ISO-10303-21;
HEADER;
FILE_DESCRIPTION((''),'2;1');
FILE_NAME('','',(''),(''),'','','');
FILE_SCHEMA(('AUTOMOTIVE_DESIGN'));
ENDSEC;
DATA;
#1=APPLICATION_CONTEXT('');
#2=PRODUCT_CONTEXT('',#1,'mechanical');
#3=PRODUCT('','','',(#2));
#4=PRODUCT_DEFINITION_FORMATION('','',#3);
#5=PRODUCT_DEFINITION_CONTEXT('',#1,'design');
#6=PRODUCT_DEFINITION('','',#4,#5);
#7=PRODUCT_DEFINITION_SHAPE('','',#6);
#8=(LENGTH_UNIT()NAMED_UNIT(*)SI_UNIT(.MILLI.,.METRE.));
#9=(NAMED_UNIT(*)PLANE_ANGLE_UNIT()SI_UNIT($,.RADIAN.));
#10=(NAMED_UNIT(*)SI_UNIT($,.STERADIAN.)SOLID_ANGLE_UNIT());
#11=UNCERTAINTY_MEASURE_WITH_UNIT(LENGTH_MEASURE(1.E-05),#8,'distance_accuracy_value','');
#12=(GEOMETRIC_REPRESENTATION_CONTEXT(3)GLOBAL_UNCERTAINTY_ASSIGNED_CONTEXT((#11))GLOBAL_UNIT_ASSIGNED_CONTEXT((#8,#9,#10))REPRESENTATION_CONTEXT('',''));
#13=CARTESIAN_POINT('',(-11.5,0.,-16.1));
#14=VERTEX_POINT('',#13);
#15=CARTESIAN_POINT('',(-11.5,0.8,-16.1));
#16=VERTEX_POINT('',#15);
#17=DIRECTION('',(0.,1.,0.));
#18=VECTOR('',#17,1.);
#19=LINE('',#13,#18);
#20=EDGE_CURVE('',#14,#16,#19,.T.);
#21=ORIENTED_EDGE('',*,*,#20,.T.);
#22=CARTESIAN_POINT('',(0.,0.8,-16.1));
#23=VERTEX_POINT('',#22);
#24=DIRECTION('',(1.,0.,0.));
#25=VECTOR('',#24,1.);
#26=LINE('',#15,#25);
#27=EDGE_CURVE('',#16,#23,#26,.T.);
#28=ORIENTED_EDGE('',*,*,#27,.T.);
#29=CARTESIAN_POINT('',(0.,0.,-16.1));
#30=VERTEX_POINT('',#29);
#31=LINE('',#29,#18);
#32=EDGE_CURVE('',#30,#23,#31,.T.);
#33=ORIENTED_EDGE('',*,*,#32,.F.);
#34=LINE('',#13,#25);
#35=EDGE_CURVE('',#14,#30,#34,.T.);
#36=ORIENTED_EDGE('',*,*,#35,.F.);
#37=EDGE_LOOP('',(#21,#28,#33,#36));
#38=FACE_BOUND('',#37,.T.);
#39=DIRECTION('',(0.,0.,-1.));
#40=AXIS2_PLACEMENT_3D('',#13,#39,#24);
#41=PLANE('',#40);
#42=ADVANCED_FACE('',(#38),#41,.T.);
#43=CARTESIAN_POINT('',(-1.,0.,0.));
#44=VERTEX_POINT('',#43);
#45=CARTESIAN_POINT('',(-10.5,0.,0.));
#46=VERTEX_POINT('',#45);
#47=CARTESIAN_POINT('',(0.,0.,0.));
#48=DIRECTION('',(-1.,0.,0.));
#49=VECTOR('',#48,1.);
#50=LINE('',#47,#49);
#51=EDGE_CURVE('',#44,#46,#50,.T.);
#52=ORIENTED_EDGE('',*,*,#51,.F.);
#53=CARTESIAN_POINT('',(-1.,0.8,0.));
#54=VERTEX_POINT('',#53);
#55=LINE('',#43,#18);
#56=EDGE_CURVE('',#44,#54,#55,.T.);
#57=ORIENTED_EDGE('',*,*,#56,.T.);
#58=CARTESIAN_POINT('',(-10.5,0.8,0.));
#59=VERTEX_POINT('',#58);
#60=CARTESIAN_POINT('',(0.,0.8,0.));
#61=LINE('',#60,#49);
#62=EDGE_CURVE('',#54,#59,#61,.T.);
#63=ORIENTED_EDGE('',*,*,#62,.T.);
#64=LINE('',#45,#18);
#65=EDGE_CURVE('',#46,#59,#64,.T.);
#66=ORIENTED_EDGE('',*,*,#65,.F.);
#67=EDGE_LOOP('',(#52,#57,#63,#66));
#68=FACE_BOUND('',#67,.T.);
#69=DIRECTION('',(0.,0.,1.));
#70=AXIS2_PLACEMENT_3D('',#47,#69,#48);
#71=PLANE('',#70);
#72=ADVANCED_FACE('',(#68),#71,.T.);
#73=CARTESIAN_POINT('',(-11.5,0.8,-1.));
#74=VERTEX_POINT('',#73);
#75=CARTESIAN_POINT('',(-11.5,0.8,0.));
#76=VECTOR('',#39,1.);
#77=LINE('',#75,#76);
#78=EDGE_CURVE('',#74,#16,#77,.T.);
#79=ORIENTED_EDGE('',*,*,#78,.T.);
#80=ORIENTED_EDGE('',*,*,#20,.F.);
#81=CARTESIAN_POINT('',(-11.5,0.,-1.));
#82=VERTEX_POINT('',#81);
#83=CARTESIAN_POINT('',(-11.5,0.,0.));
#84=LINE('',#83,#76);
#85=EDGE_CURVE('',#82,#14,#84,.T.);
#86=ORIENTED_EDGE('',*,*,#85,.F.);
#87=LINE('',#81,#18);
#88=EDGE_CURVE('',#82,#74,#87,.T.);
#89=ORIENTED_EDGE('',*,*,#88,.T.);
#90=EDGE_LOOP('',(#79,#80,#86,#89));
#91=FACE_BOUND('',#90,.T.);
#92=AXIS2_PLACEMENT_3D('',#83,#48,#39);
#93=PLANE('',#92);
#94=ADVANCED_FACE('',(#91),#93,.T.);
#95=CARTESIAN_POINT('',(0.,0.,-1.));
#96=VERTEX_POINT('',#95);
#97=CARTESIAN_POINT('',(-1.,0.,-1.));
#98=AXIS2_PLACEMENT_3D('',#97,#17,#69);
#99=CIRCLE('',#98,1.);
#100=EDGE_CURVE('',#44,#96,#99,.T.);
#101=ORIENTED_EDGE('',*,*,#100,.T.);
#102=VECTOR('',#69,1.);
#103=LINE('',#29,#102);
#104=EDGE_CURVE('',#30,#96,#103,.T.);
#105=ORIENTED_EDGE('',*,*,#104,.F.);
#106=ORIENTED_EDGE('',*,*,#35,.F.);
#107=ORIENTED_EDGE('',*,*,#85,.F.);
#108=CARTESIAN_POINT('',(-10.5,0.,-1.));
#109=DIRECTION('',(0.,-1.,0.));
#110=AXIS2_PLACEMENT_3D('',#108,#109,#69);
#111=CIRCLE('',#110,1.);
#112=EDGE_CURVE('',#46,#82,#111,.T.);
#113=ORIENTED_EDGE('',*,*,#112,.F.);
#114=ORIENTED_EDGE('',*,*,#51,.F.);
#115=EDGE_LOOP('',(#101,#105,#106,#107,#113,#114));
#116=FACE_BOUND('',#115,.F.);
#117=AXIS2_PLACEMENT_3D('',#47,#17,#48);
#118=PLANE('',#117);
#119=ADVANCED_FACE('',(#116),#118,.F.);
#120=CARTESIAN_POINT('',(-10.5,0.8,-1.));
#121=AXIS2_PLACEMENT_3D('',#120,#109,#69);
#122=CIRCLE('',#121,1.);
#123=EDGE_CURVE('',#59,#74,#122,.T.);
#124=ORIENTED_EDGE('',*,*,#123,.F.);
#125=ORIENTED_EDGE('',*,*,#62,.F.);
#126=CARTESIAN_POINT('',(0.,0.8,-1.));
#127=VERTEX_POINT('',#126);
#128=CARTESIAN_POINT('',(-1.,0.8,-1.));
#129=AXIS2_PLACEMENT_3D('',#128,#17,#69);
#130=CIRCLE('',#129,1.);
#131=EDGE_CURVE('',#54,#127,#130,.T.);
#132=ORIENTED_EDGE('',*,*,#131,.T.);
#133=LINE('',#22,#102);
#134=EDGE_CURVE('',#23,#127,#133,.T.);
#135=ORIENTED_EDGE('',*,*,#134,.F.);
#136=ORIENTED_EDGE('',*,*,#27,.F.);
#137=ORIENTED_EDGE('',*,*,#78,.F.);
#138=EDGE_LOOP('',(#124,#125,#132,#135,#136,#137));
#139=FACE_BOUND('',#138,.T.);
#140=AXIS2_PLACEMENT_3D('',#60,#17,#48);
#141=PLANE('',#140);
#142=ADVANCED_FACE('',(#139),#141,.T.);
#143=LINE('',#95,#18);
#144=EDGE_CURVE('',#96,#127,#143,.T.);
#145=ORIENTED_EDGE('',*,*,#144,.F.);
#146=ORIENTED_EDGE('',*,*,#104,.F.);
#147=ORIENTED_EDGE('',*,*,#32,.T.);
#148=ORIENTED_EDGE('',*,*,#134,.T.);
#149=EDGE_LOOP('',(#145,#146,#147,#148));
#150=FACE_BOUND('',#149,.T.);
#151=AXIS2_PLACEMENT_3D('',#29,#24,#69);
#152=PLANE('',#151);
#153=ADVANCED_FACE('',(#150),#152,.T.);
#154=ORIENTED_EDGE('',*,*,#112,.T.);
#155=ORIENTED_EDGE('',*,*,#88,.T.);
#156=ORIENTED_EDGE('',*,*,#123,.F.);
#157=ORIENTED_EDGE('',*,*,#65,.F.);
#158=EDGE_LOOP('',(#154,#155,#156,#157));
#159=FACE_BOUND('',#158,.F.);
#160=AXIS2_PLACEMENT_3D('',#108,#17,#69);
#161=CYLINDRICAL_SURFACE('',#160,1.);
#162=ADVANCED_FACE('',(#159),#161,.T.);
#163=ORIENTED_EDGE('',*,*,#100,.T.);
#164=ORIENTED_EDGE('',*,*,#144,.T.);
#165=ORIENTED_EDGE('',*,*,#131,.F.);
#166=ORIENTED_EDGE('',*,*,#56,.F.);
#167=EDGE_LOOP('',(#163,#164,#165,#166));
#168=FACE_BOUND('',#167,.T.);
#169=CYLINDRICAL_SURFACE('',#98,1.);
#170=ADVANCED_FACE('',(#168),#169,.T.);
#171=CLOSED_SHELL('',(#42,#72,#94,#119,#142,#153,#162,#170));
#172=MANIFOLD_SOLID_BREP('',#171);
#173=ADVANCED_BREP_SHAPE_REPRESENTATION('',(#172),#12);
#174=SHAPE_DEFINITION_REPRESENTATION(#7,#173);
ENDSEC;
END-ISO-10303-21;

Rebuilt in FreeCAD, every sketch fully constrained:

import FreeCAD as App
import Part
import Sketcher
from FreeCAD import Vector
Q = App.Units.Quantity


def edges_at(feature, points):
    """Names of the edges that pass closest to the given points."""
    edges = feature.Shape.Edges
    near = lambda p: min(range(len(edges)), key=lambda i: edges[i].distToShape(Part.Vertex(*p))[0])
    return sorted({f"Edge{near(p) + 1}" for p in points})

doc = App.newDocument("Part")
body = doc.addObject("PartDesign::Body", "Body")

# Sketch on XZ plane
sketch1 = body.newObject("Sketcher::SketchObject", "Sketch")
sketch1.AttachmentSupport = (doc.getObject("XZ_Plane"), [""])
sketch1.MapMode = "FlatFace"
sketch1.addGeometry(Part.LineSegment(Vector(-12, 0, 0), Vector(0, 0, 0)), False)
sketch1.addGeometry(Part.LineSegment(Vector(0, 0, 0), Vector(0, -16, 0)), False)
sketch1.addGeometry(Part.LineSegment(Vector(0, -16, 0), Vector(-12, -16, 0)), False)
sketch1.addGeometry(Part.LineSegment(Vector(-12, -16, 0), Vector(-12, 0, 0)), False)
sketch1.addConstraint(Sketcher.Constraint("Coincident", 0, 2, 1, 1))
sketch1.addConstraint(Sketcher.Constraint("Coincident", 1, 2, 2, 1))
sketch1.addConstraint(Sketcher.Constraint("Coincident", 2, 2, 3, 1))
sketch1.addConstraint(Sketcher.Constraint("Coincident", 3, 2, 0, 1))
sketch1.addConstraint(Sketcher.Constraint("Horizontal", 0))
sketch1.addConstraint(Sketcher.Constraint("Vertical", 1))
sketch1.addConstraint(Sketcher.Constraint("Horizontal", 2))
sketch1.addConstraint(Sketcher.Constraint("Vertical", 3))
sketch1.addConstraint(Sketcher.Constraint("Coincident", 0, 2, -1, 1))
sketch1.addConstraint(Sketcher.Constraint("DistanceX", 0, 1, 0, 2, Q("11.5 mm")))
sketch1.addConstraint(Sketcher.Constraint("DistanceY", 1, 2, 1, 1, Q("16.1 mm")))
pad1 = body.newObject("PartDesign::Pad", "Pad")
pad1.Profile = sketch1
pad1.Length = 0.8
pad1.Reversed = True
doc.recompute()

fillet = body.newObject("PartDesign::Fillet", "Fillet")
fillet.Base = (pad1, edges_at(pad1, [(0, 0.4, 0), (-11.5, 0.4, 0)]))
fillet.Radius = 1

doc.recompute()
